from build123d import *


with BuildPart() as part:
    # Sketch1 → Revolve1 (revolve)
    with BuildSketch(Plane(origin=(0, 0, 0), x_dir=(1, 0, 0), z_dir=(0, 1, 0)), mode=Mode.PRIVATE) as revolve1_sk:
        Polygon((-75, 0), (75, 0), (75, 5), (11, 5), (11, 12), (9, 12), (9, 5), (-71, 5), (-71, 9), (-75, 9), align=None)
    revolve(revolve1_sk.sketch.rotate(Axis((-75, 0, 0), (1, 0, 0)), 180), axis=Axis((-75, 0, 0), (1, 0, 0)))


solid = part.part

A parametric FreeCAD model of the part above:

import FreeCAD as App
import Part
import Sketcher


def add_polygon(sketch, points):
    """Adds a closed chain of lines whose ends are joined by coincident constraints."""
    first, n = sketch.GeometryCount, len(points)
    for a, b in zip(points, points[1:] + points[:1]):
        sketch.addGeometry(Part.LineSegment(App.Vector(*a, 0), App.Vector(*b, 0)), False)
    for i in range(n):
        sketch.addConstraint(Sketcher.Constraint("Coincident", first + i, 2, first + (i + 1) % n, 1))

doc = App.newDocument("Part")
body = doc.addObject("PartDesign::Body", "Body")

# Sketch on XZ plane
sketch1 = doc.addObject("Sketcher::SketchObject", "Sketch")
body.addObject(sketch1)
sketch1.AttachmentSupport = (doc.XZ_Plane, [""])
sketch1.MapMode = "FlatFace"
add_polygon(sketch1, [(-75, 0), (75, 0), (75, -5), (11, -5), (11, -12), (9, -12), (9, -5), (-71, -5), (-71, -9), (-75, -9)])  # lines 0-9
sketch1.addConstraint([
    Sketcher.Constraint("Horizontal", 0),
    Sketcher.Constraint("Vertical", 1),
    Sketcher.Constraint("Horizontal", 2),
    Sketcher.Constraint("Vertical", 3),
    Sketcher.Constraint("Horizontal", 4),
    Sketcher.Constraint("Vertical", 5),
    Sketcher.Constraint("Horizontal", 6),
    Sketcher.Constraint("Vertical", 7),
    Sketcher.Constraint("Horizontal", 8),
    Sketcher.Constraint("Vertical", 9),
    Sketcher.Constraint("Symmetric", 0, 2, 9, 2, -1, 1),
    Sketcher.Constraint("Horizontal", 2, 2, 5, 2),
    Sketcher.Constraint("Equal", 8, 7),
    Sketcher.Constraint("DistanceX", 0, 1, 0, 2, 150.0),
    Sketcher.Constraint("DistanceX", 2, 2, 2, 1, 64.0),
    Sketcher.Constraint("DistanceX", 4, 2, 4, 1, 2.0),
    Sketcher.Constraint("DistanceX", 6, 2, 6, 1, 80.0),
    Sketcher.Constraint("DistanceY", 1, 2, 1, 1, 5.0),
    Sketcher.Constraint("DistanceY", 3, 2, 3, 1, 7.0),
])
revolution = doc.addObject("PartDesign::Revolution", "Revolution")
body.addObject(revolution)
revolution.Profile = sketch1
revolution.ReferenceAxis = (sketch1, ["H_Axis"])
revolution.Angle = 360

doc.recompute()
